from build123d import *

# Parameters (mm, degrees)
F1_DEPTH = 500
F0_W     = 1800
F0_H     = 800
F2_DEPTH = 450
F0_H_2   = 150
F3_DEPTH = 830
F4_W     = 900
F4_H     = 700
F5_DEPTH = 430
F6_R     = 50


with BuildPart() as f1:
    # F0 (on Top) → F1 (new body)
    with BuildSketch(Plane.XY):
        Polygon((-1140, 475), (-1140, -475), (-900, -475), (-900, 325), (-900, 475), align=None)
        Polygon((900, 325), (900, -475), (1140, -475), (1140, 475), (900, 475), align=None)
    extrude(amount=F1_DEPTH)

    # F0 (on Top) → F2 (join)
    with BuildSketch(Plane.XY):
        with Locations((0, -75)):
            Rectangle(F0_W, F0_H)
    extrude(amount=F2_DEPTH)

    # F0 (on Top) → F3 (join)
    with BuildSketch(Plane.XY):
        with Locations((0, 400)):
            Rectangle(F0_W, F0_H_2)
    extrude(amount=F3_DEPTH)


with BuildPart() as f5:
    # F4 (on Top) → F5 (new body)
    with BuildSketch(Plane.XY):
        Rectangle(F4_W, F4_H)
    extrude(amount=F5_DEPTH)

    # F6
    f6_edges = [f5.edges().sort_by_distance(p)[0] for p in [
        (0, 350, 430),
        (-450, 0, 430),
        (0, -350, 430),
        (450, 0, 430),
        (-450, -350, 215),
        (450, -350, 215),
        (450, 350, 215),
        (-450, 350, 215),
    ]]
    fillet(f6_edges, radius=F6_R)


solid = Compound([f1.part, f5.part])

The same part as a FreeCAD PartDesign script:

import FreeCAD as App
import Part
import Sketcher
from FreeCAD import Vector
Q = App.Units.Quantity


def edges_at(feature, points):
    """Names of the edges that pass closest to the given points."""
    edges = feature.Shape.Edges
    near = lambda p: min(range(len(edges)), key=lambda i: edges[i].distToShape(Part.Vertex(*p))[0])
    return sorted({f"Edge{near(p) + 1}" for p in points})

doc = App.newDocument("Part")
body = doc.addObject("PartDesign::Body", "Body")
body.AllowCompound = True

# Sketch on XY plane
sketch1 = body.newObject("Sketcher::SketchObject", "Sketch")
sketch1.AttachmentSupport = (doc.getObject("XY_Plane"), [""])
sketch1.MapMode = "FlatFace"
sketch1.addGeometry([
    Part.LineSegment(Vector(-1140, 475, 0), Vector(-1140, -475, 0)),  # 0
    Part.LineSegment(Vector(-1140, -475, 0), Vector(-900, -475, 0)),  # 1
    Part.LineSegment(Vector(-900, -475, 0), Vector(-900, 475, 0)),  # 2
    Part.LineSegment(Vector(-900, 475, 0), Vector(-1140, 475, 0)),  # 3
    Part.LineSegment(Vector(900, -475, 0), Vector(1140, -475, 0)),  # 4
    Part.LineSegment(Vector(1140, -475, 0), Vector(1140, 475, 0)),  # 5
    Part.LineSegment(Vector(1140, 475, 0), Vector(900, 475, 0)),  # 6
    Part.LineSegment(Vector(900, 475, 0), Vector(900, -475, 0)),  # 7
], False)
sketch1.addConstraint([
    Sketcher.Constraint("Coincident", 0, 2, 1, 1),
    Sketcher.Constraint("Coincident", 1, 2, 2, 1),
    Sketcher.Constraint("Coincident", 2, 2, 3, 1),
    Sketcher.Constraint("Coincident", 3, 2, 0, 1),
    Sketcher.Constraint("Coincident", 4, 2, 5, 1),
    Sketcher.Constraint("Coincident", 5, 2, 6, 1),
    Sketcher.Constraint("Coincident", 6, 2, 7, 1),
    Sketcher.Constraint("Coincident", 7, 2, 4, 1),
    Sketcher.Constraint("Vertical", 0),
    Sketcher.Constraint("Horizontal", 1),
    Sketcher.Constraint("Vertical", 2),
    Sketcher.Constraint("Horizontal", 3),
    Sketcher.Constraint("Horizontal", 4),
    Sketcher.Constraint("Vertical", 5),
    Sketcher.Constraint("Horizontal", 6),
    Sketcher.Constraint("Vertical", 7),
    Sketcher.Constraint("Symmetric", 3, 2, 4, 2, -1, 1),
    Sketcher.Constraint("Symmetric", 1, 2, 6, 2, -1, 1),
    Sketcher.Constraint("Horizontal", 1, 2, 4, 2),
    Sketcher.Constraint("DistanceX", 1, 1, 1, 2, Q("240 mm")),
    Sketcher.Constraint("DistanceY", 0, 2, 0, 1, Q("950 mm")),
    Sketcher.Constraint("DistanceX", 0, 2, -1, 1, Q("1140 mm")),
])
pad1 = body.newObject("PartDesign::Pad", "Pad")
pad1.Profile = sketch1
pad1.Length = 500

# Sketch on XY plane
sketch2 = body.newObject("Sketcher::SketchObject", "Sketch001")
sketch2.AttachmentSupport = (doc.getObject("XY_Plane"), [""])
sketch2.MapMode = "FlatFace"
sketch2.addGeometry([
    Part.LineSegment(Vector(-900, 325, 0), Vector(-900, -475, 0)),
    Part.LineSegment(Vector(-900, -475, 0), Vector(900, -475, 0)),
    Part.LineSegment(Vector(900, -475, 0), Vector(900, 325, 0)),
    Part.LineSegment(Vector(900, 325, 0), Vector(-900, 325, 0)),
], False)
sketch2.addConstraint([
    Sketcher.Constraint("Coincident", 0, 2, 1, 1),
    Sketcher.Constraint("Coincident", 1, 2, 2, 1),
    Sketcher.Constraint("Coincident", 2, 2, 3, 1),
    Sketcher.Constraint("Coincident", 3, 2, 0, 1),
    Sketcher.Constraint("Vertical", 0),
    Sketcher.Constraint("Horizontal", 1),
    Sketcher.Constraint("Vertical", 2),
    Sketcher.Constraint("Horizontal", 3),
    Sketcher.Constraint("DistanceX", 1, 1, 1, 2, Q("1800 mm")),
    Sketcher.Constraint("DistanceY", 0, 2, 0, 1, Q("800 mm")),
    Sketcher.Constraint("DistanceX", 0, 2, -1, 1, Q("900 mm")),
    Sketcher.Constraint("DistanceY", 0, 2, -1, 1, Q("475 mm")),
])
pad2 = body.newObject("PartDesign::Pad", "Pad001")
pad2.Profile = sketch2
pad2.Length = 450

# Sketch on XY plane
sketch3 = body.newObject("Sketcher::SketchObject", "Sketch002")
sketch3.AttachmentSupport = (doc.getObject("XY_Plane"), [""])
sketch3.MapMode = "FlatFace"
sketch3.addGeometry([
    Part.LineSegment(Vector(-900, 475, 0), Vector(-900, 325, 0)),
    Part.LineSegment(Vector(-900, 325, 0), Vector(900, 325, 0)),
    Part.LineSegment(Vector(900, 325, 0), Vector(900, 475, 0)),
    Part.LineSegment(Vector(900, 475, 0), Vector(-900, 475, 0)),
], False)
sketch3.addConstraint([
    Sketcher.Constraint("Coincident", 0, 2, 1, 1),
    Sketcher.Constraint("Coincident", 1, 2, 2, 1),
    Sketcher.Constraint("Coincident", 2, 2, 3, 1),
    Sketcher.Constraint("Coincident", 3, 2, 0, 1),
    Sketcher.Constraint("Vertical", 0),
    Sketcher.Constraint("Horizontal", 1),
    Sketcher.Constraint("Vertical", 2),
    Sketcher.Constraint("Horizontal", 3),
    Sketcher.Constraint("DistanceX", 1, 1, 1, 2, Q("1800 mm")),
    Sketcher.Constraint("DistanceY", 0, 2, 0, 1, Q("150 mm")),
    Sketcher.Constraint("DistanceX", 0, 2, -1, 1, Q("900 mm")),
    Sketcher.Constraint("DistanceY", -1, 1, 0, 2, Q("325 mm")),
])
pad3 = body.newObject("PartDesign::Pad", "Pad002")
pad3.Profile = sketch3
pad3.Length = 830
body2 = doc.addObject("PartDesign::Body", "Body001")

# Sketch on XY plane
sketch4 = body2.newObject("Sketcher::SketchObject", "Sketch003")
sketch4.AttachmentSupport = (doc.getObject("XY_Plane001"), [""])
sketch4.MapMode = "FlatFace"
sketch4.addGeometry([
    Part.LineSegment(Vector(-450, 350, 0), Vector(-450, -350, 0)),
    Part.LineSegment(Vector(-450, -350, 0), Vector(450, -350, 0)),
    Part.LineSegment(Vector(450, -350, 0), Vector(450, 350, 0)),
    Part.LineSegment(Vector(450, 350, 0), Vector(-450, 350, 0)),
], False)
sketch4.addConstraint([
    Sketcher.Constraint("Coincident", 0, 2, 1, 1),
    Sketcher.Constraint("Coincident", 1, 2, 2, 1),
    Sketcher.Constraint("Coincident", 2, 2, 3, 1),
    Sketcher.Constraint("Coincident", 3, 2, 0, 1),
    Sketcher.Constraint("Vertical", 0),
    Sketcher.Constraint("Horizontal", 1),
    Sketcher.Constraint("Vertical", 2),
    Sketcher.Constraint("Horizontal", 3),
    Sketcher.Constraint("Symmetric", 0, 2, 2, 2, -1, 1),
    Sketcher.Constraint("DistanceX", 1, 1, 1, 2, Q("900 mm")),
    Sketcher.Constraint("DistanceY", 0, 2, 0, 1, Q("700 mm")),
])
pad4 = body2.newObject("PartDesign::Pad", "Pad003")
pad4.Profile = sketch4
pad4.Length = 430
doc.recompute()

fillet = body2.newObject("PartDesign::Fillet", "Fillet")
fillet.Base = (pad4, edges_at(pad4, [
    (0, 350, 430),
    (-450, 0, 430),
    (0, -350, 430),
    (450, 0, 430),
    (-450, -350, 215),
    (450, -350, 215),
    (450, 350, 215),
    (-450, 350, 215),
]))
fillet.Radius = 50

doc.recompute()
